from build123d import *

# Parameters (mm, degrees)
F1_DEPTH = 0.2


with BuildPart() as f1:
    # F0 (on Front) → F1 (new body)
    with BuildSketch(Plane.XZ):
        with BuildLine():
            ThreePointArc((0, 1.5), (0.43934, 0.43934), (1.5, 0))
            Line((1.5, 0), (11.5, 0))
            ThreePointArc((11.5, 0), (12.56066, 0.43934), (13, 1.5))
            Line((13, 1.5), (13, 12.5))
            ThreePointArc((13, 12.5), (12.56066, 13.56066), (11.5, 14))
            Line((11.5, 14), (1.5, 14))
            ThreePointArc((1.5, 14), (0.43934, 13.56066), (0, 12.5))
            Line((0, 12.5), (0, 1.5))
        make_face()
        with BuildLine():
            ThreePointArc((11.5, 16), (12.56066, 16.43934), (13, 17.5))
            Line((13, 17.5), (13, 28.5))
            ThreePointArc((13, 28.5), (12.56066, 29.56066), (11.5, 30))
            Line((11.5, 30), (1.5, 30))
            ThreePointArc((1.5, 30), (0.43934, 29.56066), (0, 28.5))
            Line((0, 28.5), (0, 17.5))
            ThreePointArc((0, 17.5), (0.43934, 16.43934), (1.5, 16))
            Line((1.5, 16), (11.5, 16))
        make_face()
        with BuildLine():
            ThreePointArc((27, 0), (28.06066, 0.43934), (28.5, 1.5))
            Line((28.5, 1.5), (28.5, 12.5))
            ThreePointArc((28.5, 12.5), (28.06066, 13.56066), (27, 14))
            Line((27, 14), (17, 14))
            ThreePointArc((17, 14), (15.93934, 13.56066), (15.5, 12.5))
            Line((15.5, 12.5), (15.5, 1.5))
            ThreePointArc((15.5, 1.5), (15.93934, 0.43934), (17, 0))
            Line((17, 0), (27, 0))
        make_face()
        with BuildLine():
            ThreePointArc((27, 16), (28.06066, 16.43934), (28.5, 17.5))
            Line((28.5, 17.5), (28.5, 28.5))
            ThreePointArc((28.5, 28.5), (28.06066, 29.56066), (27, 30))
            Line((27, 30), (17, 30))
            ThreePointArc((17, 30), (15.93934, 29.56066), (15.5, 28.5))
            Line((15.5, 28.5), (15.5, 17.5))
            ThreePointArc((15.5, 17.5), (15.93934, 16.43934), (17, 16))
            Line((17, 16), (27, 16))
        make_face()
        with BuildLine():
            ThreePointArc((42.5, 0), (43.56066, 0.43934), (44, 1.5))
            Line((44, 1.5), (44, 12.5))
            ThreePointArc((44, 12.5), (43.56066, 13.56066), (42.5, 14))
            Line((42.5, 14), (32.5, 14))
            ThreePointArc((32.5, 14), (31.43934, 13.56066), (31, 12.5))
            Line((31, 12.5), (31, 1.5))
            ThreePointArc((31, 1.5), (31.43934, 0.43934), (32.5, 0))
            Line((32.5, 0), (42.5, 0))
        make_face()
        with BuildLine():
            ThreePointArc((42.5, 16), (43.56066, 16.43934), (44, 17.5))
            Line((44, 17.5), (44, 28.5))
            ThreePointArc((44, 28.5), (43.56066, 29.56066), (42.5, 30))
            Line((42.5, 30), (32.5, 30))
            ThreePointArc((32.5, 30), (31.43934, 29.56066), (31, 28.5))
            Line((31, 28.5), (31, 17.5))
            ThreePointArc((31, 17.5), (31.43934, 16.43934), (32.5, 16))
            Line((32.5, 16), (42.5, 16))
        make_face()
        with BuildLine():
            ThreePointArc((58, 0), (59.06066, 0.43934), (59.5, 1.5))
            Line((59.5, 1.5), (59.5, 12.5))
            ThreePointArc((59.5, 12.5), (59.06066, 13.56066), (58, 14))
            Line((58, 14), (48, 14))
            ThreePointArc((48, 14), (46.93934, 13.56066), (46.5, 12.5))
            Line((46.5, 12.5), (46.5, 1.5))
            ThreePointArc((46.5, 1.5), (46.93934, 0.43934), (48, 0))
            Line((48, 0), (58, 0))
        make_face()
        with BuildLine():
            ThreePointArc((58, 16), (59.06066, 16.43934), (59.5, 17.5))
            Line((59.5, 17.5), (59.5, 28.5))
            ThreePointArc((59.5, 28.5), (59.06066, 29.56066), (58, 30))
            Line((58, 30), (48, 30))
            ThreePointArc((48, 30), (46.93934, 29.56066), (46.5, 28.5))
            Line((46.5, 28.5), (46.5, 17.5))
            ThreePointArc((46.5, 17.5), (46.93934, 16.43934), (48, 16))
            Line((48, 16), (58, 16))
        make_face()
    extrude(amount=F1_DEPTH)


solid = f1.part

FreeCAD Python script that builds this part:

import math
import FreeCAD as App
import Part
import Sketcher
Q = App.Units.Quantity

doc = App.newDocument("Part")
body = doc.addObject("PartDesign::Body", "Body")
body.AllowCompound = True

sketch1 = body.newObject("Sketcher::SketchObject", "Sketch")
sketch1.AttachmentSupport = (doc.getObject("XZ_Plane"), [""])
sketch1.MapMode = "FlatFace"
sketch1.addGeometry(Part.ArcOfCircle(Part.Circle(App.Vector(1.500001, 1.500001, 0), App.Vector(0, 0, 1), 1.500001), math.radians(-179.999978), math.radians(-90.000022)), False)
sketch1.addGeometry(Part.LineSegment(App.Vector(1.5, 0, 0), App.Vector(11.5, 0, 0)), False)
sketch1.addGeometry(Part.ArcOfCircle(Part.Circle(App.Vector(11.499999, 1.500001, 0), App.Vector(0, 0, 1), 1.500001), math.radians(-89.999978), math.radians(-0.000022)), False)
sketch1.addGeometry(Part.LineSegment(App.Vector(13, 1.5, 0), App.Vector(13, 12.5, 0)), False)
sketch1.addGeometry(Part.ArcOfCircle(Part.Circle(App.Vector(11.499999, 12.499999, 0), App.Vector(0, 0, 1), 1.500001), math.radians(0.000022), math.radians(89.999978)), False)
sketch1.addGeometry(Part.LineSegment(App.Vector(11.5, 14, 0), App.Vector(1.5, 14, 0)), False)
sketch1.addGeometry(Part.ArcOfCircle(Part.Circle(App.Vector(1.500001, 12.499999, 0), App.Vector(0, 0, 1), 1.500001), math.radians(90.000022), math.radians(179.999978)), False)
sketch1.addGeometry(Part.LineSegment(App.Vector(0, 12.5, 0), App.Vector(0, 1.5, 0)), False)
sketch1.addGeometry(Part.ArcOfCircle(Part.Circle(App.Vector(11.499999, 17.500001, 0), App.Vector(0, 0, 1), 1.500001), math.radians(-89.999978), math.radians(-0.000022)), False)
sketch1.addGeometry(Part.LineSegment(App.Vector(13, 17.5, 0), App.Vector(13, 28.5, 0)), False)
sketch1.addGeometry(Part.ArcOfCircle(Part.Circle(App.Vector(11.499999, 28.499999, 0), App.Vector(0, 0, 1), 1.500001), math.radians(0.000022), math.radians(89.999978)), False)
sketch1.addGeometry(Part.LineSegment(App.Vector(11.5, 30, 0), App.Vector(1.5, 30, 0)), False)
sketch1.addGeometry(Part.ArcOfCircle(Part.Circle(App.Vector(1.500001, 28.499999, 0), App.Vector(0, 0, 1), 1.500001), math.radians(90.000022), math.radians(179.999978)), False)
sketch1.addGeometry(Part.LineSegment(App.Vector(0, 28.5, 0), App.Vector(0, 17.5, 0)), False)
sketch1.addGeometry(Part.ArcOfCircle(Part.Circle(App.Vector(1.500001, 17.500001, 0), App.Vector(0, 0, 1), 1.500001), math.radians(-179.999978), math.radians(-90.000022)), False)
sketch1.addGeometry(Part.LineSegment(App.Vector(1.5, 16, 0), App.Vector(11.5, 16, 0)), False)
sketch1.addGeometry(Part.ArcOfCircle(Part.Circle(App.Vector(26.999999, 1.500001, 0), App.Vector(0, 0, 1), 1.500001), math.radians(-89.999978), math.radians(-0.000022)), False)
sketch1.addGeometry(Part.LineSegment(App.Vector(28.5, 1.5, 0), App.Vector(28.5, 12.5, 0)), False)
sketch1.addGeometry(Part.ArcOfCircle(Part.Circle(App.Vector(26.999999, 12.499999, 0), App.Vector(0, 0, 1), 1.500001), math.radians(0.000022), math.radians(89.999978)), False)
sketch1.addGeometry(Part.LineSegment(App.Vector(27, 14, 0), App.Vector(17, 14, 0)), False)
sketch1.addGeometry(Part.ArcOfCircle(Part.Circle(App.Vector(17.000001, 12.499999, 0), App.Vector(0, 0, 1), 1.500001), math.radians(90.000022), math.radians(179.999978)), False)
sketch1.addGeometry(Part.LineSegment(App.Vector(15.5, 12.5, 0), App.Vector(15.5, 1.5, 0)), False)
sketch1.addGeometry(Part.ArcOfCircle(Part.Circle(App.Vector(17.000001, 1.500001, 0), App.Vector(0, 0, 1), 1.500001), math.radians(-179.999978), math.radians(-90.000022)), False)
sketch1.addGeometry(Part.LineSegment(App.Vector(17, 0, 0), App.Vector(27, 0, 0)), False)
sketch1.addGeometry(Part.ArcOfCircle(Part.Circle(App.Vector(26.999999, 17.500001, 0), App.Vector(0, 0, 1), 1.500001), math.radians(-89.999978), math.radians(-0.000022)), False)
sketch1.addGeometry(Part.LineSegment(App.Vector(28.5, 17.5, 0), App.Vector(28.5, 28.5, 0)), False)
sketch1.addGeometry(Part.ArcOfCircle(Part.Circle(App.Vector(26.999999, 28.499999, 0), App.Vector(0, 0, 1), 1.500001), math.radians(0.000022), math.radians(89.999978)), False)
sketch1.addGeometry(Part.LineSegment(App.Vector(27, 30, 0), App.Vector(17, 30, 0)), False)
sketch1.addGeometry(Part.ArcOfCircle(Part.Circle(App.Vector(17.000001, 28.499999, 0), App.Vector(0, 0, 1), 1.500001), math.radians(90.000022), math.radians(179.999978)), False)
sketch1.addGeometry(Part.LineSegment(App.Vector(15.5, 28.5, 0), App.Vector(15.5, 17.5, 0)), False)
sketch1.addGeometry(Part.ArcOfCircle(Part.Circle(App.Vector(17.000001, 17.500001, 0), App.Vector(0, 0, 1), 1.500001), math.radians(-179.999978), math.radians(-90.000022)), False)
sketch1.addGeometry(Part.LineSegment(App.Vector(17, 16, 0), App.Vector(27, 16, 0)), False)
sketch1.addGeometry(Part.ArcOfCircle(Part.Circle(App.Vector(42.499999, 1.500001, 0), App.Vector(0, 0, 1), 1.500001), math.radians(-89.999978), math.radians(-0.000022)), False)
sketch1.addGeometry(Part.LineSegment(App.Vector(44, 1.5, 0), App.Vector(44, 12.5, 0)), False)
sketch1.addGeometry(Part.ArcOfCircle(Part.Circle(App.Vector(42.499999, 12.499999, 0), App.Vector(0, 0, 1), 1.500001), math.radians(0.000022), math.radians(89.999978)), False)
sketch1.addGeometry(Part.LineSegment(App.Vector(42.5, 14, 0), App.Vector(32.5, 14, 0)), False)
sketch1.addGeometry(Part.ArcOfCircle(Part.Circle(App.Vector(32.500001, 12.499999, 0), App.Vector(0, 0, 1), 1.500001), math.radians(90.000022), math.radians(179.999978)), False)
sketch1.addGeometry(Part.LineSegment(App.Vector(31, 12.5, 0), App.Vector(31, 1.5, 0)), False)
sketch1.addGeometry(Part.ArcOfCircle(Part.Circle(App.Vector(32.500001, 1.500001, 0), App.Vector(0, 0, 1), 1.500001), math.radians(-179.999978), math.radians(-90.000022)), False)
sketch1.addGeometry(Part.LineSegment(App.Vector(32.5, 0, 0), App.Vector(42.5, 0, 0)), False)
sketch1.addGeometry(Part.ArcOfCircle(Part.Circle(App.Vector(42.499999, 17.500001, 0), App.Vector(0, 0, 1), 1.500001), math.radians(-89.999978), math.radians(-0.000022)), False)
sketch1.addGeometry(Part.LineSegment(App.Vector(44, 17.5, 0), App.Vector(44, 28.5, 0)), False)
sketch1.addGeometry(Part.ArcOfCircle(Part.Circle(App.Vector(42.499999, 28.499999, 0), App.Vector(0, 0, 1), 1.500001), math.radians(0.000022), math.radians(89.999978)), False)
sketch1.addGeometry(Part.LineSegment(App.Vector(42.5, 30, 0), App.Vector(32.5, 30, 0)), False)
sketch1.addGeometry(Part.ArcOfCircle(Part.Circle(App.Vector(32.500001, 28.499999, 0), App.Vector(0, 0, 1), 1.500001), math.radians(90.000022), math.radians(179.999978)), False)
sketch1.addGeometry(Part.LineSegment(App.Vector(31, 28.5, 0), App.Vector(31, 17.5, 0)), False)
sketch1.addGeometry(Part.ArcOfCircle(Part.Circle(App.Vector(32.500001, 17.500001, 0), App.Vector(0, 0, 1), 1.500001), math.radians(-179.999978), math.radians(-90.000022)), False)
sketch1.addGeometry(Part.LineSegment(App.Vector(32.5, 16, 0), App.Vector(42.5, 16, 0)), False)
sketch1.addGeometry(Part.ArcOfCircle(Part.Circle(App.Vector(57.999999, 1.500001, 0), App.Vector(0, 0, 1), 1.500001), math.radians(-89.999978), math.radians(-0.000022)), False)
sketch1.addGeometry(Part.LineSegment(App.Vector(59.5, 1.5, 0), App.Vector(59.5, 12.5, 0)), False)
sketch1.addGeometry(Part.ArcOfCircle(Part.Circle(App.Vector(57.999999, 12.499999, 0), App.Vector(0, 0, 1), 1.500001), math.radians(0.000022), math.radians(89.999978)), False)
sketch1.addGeometry(Part.LineSegment(App.Vector(58, 14, 0), App.Vector(48, 14, 0)), False)
sketch1.addGeometry(Part.ArcOfCircle(Part.Circle(App.Vector(48.000001, 12.499999, 0), App.Vector(0, 0, 1), 1.500001), math.radians(90.000022), math.radians(179.999978)), False)
sketch1.addGeometry(Part.LineSegment(App.Vector(46.5, 12.5, 0), App.Vector(46.5, 1.5, 0)), False)
sketch1.addGeometry(Part.ArcOfCircle(Part.Circle(App.Vector(48.000001, 1.500001, 0), App.Vector(0, 0, 1), 1.500001), math.radians(-179.999978), math.radians(-90.000022)), False)
sketch1.addGeometry(Part.LineSegment(App.Vector(48, 0, 0), App.Vector(58, 0, 0)), False)
sketch1.addGeometry(Part.ArcOfCircle(Part.Circle(App.Vector(57.999999, 17.500001, 0), App.Vector(0, 0, 1), 1.500001), math.radians(-89.999978), math.radians(-0.000022)), False)
sketch1.addGeometry(Part.LineSegment(App.Vector(59.5, 17.5, 0), App.Vector(59.5, 28.5, 0)), False)
sketch1.addGeometry(Part.ArcOfCircle(Part.Circle(App.Vector(57.999999, 28.499999, 0), App.Vector(0, 0, 1), 1.500001), math.radians(0.000022), math.radians(89.999978)), False)
sketch1.addGeometry(Part.LineSegment(App.Vector(58, 30, 0), App.Vector(48, 30, 0)), False)
sketch1.addGeometry(Part.ArcOfCircle(Part.Circle(App.Vector(48.000001, 28.499999, 0), App.Vector(0, 0, 1), 1.500001), math.radians(90.000022), math.radians(179.999978)), False)
sketch1.addGeometry(Part.LineSegment(App.Vector(46.5, 28.5, 0), App.Vector(46.5, 17.5, 0)), False)
sketch1.addGeometry(Part.ArcOfCircle(Part.Circle(App.Vector(48.000001, 17.500001, 0), App.Vector(0, 0, 1), 1.500001), math.radians(-179.999978), math.radians(-90.000022)), False)
sketch1.addGeometry(Part.LineSegment(App.Vector(48, 16, 0), App.Vector(58, 16, 0)), False)
sketch1.addConstraint(Sketcher.Constraint("Tangent", 0, 2, 1, 1))
sketch1.addConstraint(Sketcher.Constraint("Tangent", 1, 2, 2, 1))
sketch1.addConstraint(Sketcher.Constraint("Tangent", 2, 2, 3, 1))
sketch1.addConstraint(Sketcher.Constraint("Tangent", 3, 2, 4, 1))
sketch1.addConstraint(Sketcher.Constraint("Tangent", 4, 2, 5, 1))
sketch1.addConstraint(Sketcher.Constraint("Tangent", 5, 2, 6, 1))
sketch1.addConstraint(Sketcher.Constraint("Tangent", 6, 2, 7, 1))
sketch1.addConstraint(Sketcher.Constraint("Tangent", 7, 2, 0, 1))
sketch1.addConstraint(Sketcher.Constraint("Tangent", 8, 2, 9, 1))
sketch1.addConstraint(Sketcher.Constraint("Tangent", 9, 2, 10, 1))
sketch1.addConstraint(Sketcher.Constraint("Tangent", 10, 2, 11, 1))
sketch1.addConstraint(Sketcher.Constraint("Tangent", 11, 2, 12, 1))
sketch1.addConstraint(Sketcher.Constraint("Tangent", 12, 2, 13, 1))
sketch1.addConstraint(Sketcher.Constraint("Tangent", 13, 2, 14, 1))
sketch1.addConstraint(Sketcher.Constraint("Tangent", 14, 2, 15, 1))
sketch1.addConstraint(Sketcher.Constraint("Tangent", 15, 2, 8, 1))
sketch1.addConstraint(Sketcher.Constraint("Tangent", 16, 2, 17, 1))
sketch1.addConstraint(Sketcher.Constraint("Tangent", 17, 2, 18, 1))
sketch1.addConstraint(Sketcher.Constraint("Tangent", 18, 2, 19, 1))
sketch1.addConstraint(Sketcher.Constraint("Tangent", 19, 2, 20, 1))
sketch1.addConstraint(Sketcher.Constraint("Tangent", 20, 2, 21, 1))
sketch1.addConstraint(Sketcher.Constraint("Tangent", 21, 2, 22, 1))
sketch1.addConstraint(Sketcher.Constraint("Tangent", 22, 2, 23, 1))
sketch1.addConstraint(Sketcher.Constraint("Tangent", 23, 2, 16, 1))
sketch1.addConstraint(Sketcher.Constraint("Tangent", 24, 2, 25, 1))
sketch1.addConstraint(Sketcher.Constraint("Tangent", 25, 2, 26, 1))
sketch1.addConstraint(Sketcher.Constraint("Tangent", 26, 2, 27, 1))
sketch1.addConstraint(Sketcher.Constraint("Tangent", 27, 2, 28, 1))
sketch1.addConstraint(Sketcher.Constraint("Tangent", 28, 2, 29, 1))
sketch1.addConstraint(Sketcher.Constraint("Tangent", 29, 2, 30, 1))
sketch1.addConstraint(Sketcher.Constraint("Tangent", 30, 2, 31, 1))
sketch1.addConstraint(Sketcher.Constraint("Tangent", 31, 2, 24, 1))
sketch1.addConstraint(Sketcher.Constraint("Tangent", 32, 2, 33, 1))
sketch1.addConstraint(Sketcher.Constraint("Tangent", 33, 2, 34, 1))
sketch1.addConstraint(Sketcher.Constraint("Tangent", 34, 2, 35, 1))
sketch1.addConstraint(Sketcher.Constraint("Tangent", 35, 2, 36, 1))
sketch1.addConstraint(Sketcher.Constraint("Tangent", 36, 2, 37, 1))
sketch1.addConstraint(Sketcher.Constraint("Tangent", 37, 2, 38, 1))
sketch1.addConstraint(Sketcher.Constraint("Tangent", 38, 2, 39, 1))
sketch1.addConstraint(Sketcher.Constraint("Tangent", 39, 2, 32, 1))
sketch1.addConstraint(Sketcher.Constraint("Tangent", 40, 2, 41, 1))
sketch1.addConstraint(Sketcher.Constraint("Tangent", 41, 2, 42, 1))
sketch1.addConstraint(Sketcher.Constraint("Tangent", 42, 2, 43, 1))
sketch1.addConstraint(Sketcher.Constraint("Tangent", 43, 2, 44, 1))
sketch1.addConstraint(Sketcher.Constraint("Tangent", 44, 2, 45, 1))
sketch1.addConstraint(Sketcher.Constraint("Tangent", 45, 2, 46, 1))
sketch1.addConstraint(Sketcher.Constraint("Tangent", 46, 2, 47, 1))
sketch1.addConstraint(Sketcher.Constraint("Tangent", 47, 2, 40, 1))
sketch1.addConstraint(Sketcher.Constraint("Tangent", 48, 2, 49, 1))
sketch1.addConstraint(Sketcher.Constraint("Tangent", 49, 2, 50, 1))
sketch1.addConstraint(Sketcher.Constraint("Tangent", 50, 2, 51, 1))
sketch1.addConstraint(Sketcher.Constraint("Tangent", 51, 2, 52, 1))
sketch1.addConstraint(Sketcher.Constraint("Tangent", 52, 2, 53, 1))
sketch1.addConstraint(Sketcher.Constraint("Tangent", 53, 2, 54, 1))
sketch1.addConstraint(Sketcher.Constraint("Tangent", 54, 2, 55, 1))
sketch1.addConstraint(Sketcher.Constraint("Tangent", 55, 2, 48, 1))
sketch1.addConstraint(Sketcher.Constraint("Tangent", 56, 2, 57, 1))
sketch1.addConstraint(Sketcher.Constraint("Tangent", 57, 2, 58, 1))
sketch1.addConstraint(Sketcher.Constraint("Tangent", 58, 2, 59, 1))
sketch1.addConstraint(Sketcher.Constraint("Tangent", 59, 2, 60, 1))
sketch1.addConstraint(Sketcher.Constraint("Tangent", 60, 2, 61, 1))
sketch1.addConstraint(Sketcher.Constraint("Tangent", 61, 2, 62, 1))
sketch1.addConstraint(Sketcher.Constraint("Tangent", 62, 2, 63, 1))
sketch1.addConstraint(Sketcher.Constraint("Tangent", 63, 2, 56, 1))
sketch1.addConstraint(Sketcher.Constraint("Horizontal", 1))
sketch1.addConstraint(Sketcher.Constraint("Vertical", 3))
sketch1.addConstraint(Sketcher.Constraint("Horizontal", 5))
sketch1.addConstraint(Sketcher.Constraint("Vertical", 7))
sketch1.addConstraint(Sketcher.Constraint("Vertical", 9))
sketch1.addConstraint(Sketcher.Constraint("Horizontal", 11))
sketch1.addConstraint(Sketcher.Constraint("Vertical", 13))
sketch1.addConstraint(Sketcher.Constraint("Horizontal", 15))
sketch1.addConstraint(Sketcher.Constraint("Vertical", 17))
sketch1.addConstraint(Sketcher.Constraint("Horizontal", 19))
sketch1.addConstraint(Sketcher.Constraint("Vertical", 21))
sketch1.addConstraint(Sketcher.Constraint("Horizontal", 23))
sketch1.addConstraint(Sketcher.Constraint("Vertical", 25))
sketch1.addConstraint(Sketcher.Constraint("Horizontal", 27))
sketch1.addConstraint(Sketcher.Constraint("Vertical", 29))
sketch1.addConstraint(Sketcher.Constraint("Horizontal", 31))
sketch1.addConstraint(Sketcher.Constraint("Vertical", 33))
sketch1.addConstraint(Sketcher.Constraint("Horizontal", 35))
sketch1.addConstraint(Sketcher.Constraint("Vertical", 37))
sketch1.addConstraint(Sketcher.Constraint("Horizontal", 39))
sketch1.addConstraint(Sketcher.Constraint("Vertical", 41))
sketch1.addConstraint(Sketcher.Constraint("Horizontal", 43))
sketch1.addConstraint(Sketcher.Constraint("Vertical", 45))
sketch1.addConstraint(Sketcher.Constraint("Horizontal", 47))
sketch1.addConstraint(Sketcher.Constraint("Vertical", 49))
sketch1.addConstraint(Sketcher.Constraint("Horizontal", 51))
sketch1.addConstraint(Sketcher.Constraint("Vertical", 53))
sketch1.addConstraint(Sketcher.Constraint("Horizontal", 55))
sketch1.addConstraint(Sketcher.Constraint("Vertical", 57))
sketch1.addConstraint(Sketcher.Constraint("Horizontal", 59))
sketch1.addConstraint(Sketcher.Constraint("Vertical", 61))
sketch1.addConstraint(Sketcher.Constraint("Horizontal", 63))
sketch1.addConstraint(Sketcher.Constraint("Equal", 0, 2))
sketch1.addConstraint(Sketcher.Constraint("Equal", 2, 4))
sketch1.addConstraint(Sketcher.Constraint("Equal", 4, 6))
sketch1.addConstraint(Sketcher.Constraint("Equal", 6, 8))
sketch1.addConstraint(Sketcher.Constraint("Equal", 8, 10))
sketch1.addConstraint(Sketcher.Constraint("Equal", 10, 12))
sketch1.addConstraint(Sketcher.Constraint("Equal", 12, 14))
sketch1.addConstraint(Sketcher.Constraint("Equal", 14, 16))
sketch1.addConstraint(Sketcher.Constraint("Equal", 16, 18))
sketch1.addConstraint(Sketcher.Constraint("Equal", 18, 20))
sketch1.addConstraint(Sketcher.Constraint("Equal", 20, 22))
sketch1.addConstraint(Sketcher.Constraint("Equal", 22, 24))
sketch1.addConstraint(Sketcher.Constraint("Equal", 24, 26))
sketch1.addConstraint(Sketcher.Constraint("Equal", 26, 28))
sketch1.addConstraint(Sketcher.Constraint("Equal", 28, 30))
sketch1.addConstraint(Sketcher.Constraint("Equal", 30, 32))
sketch1.addConstraint(Sketcher.Constraint("Equal", 32, 34))
sketch1.addConstraint(Sketcher.Constraint("Equal", 34, 36))
sketch1.addConstraint(Sketcher.Constraint("Equal", 36, 38))
sketch1.addConstraint(Sketcher.Constraint("Equal", 38, 40))
sketch1.addConstraint(Sketcher.Constraint("Equal", 40, 42))
sketch1.addConstraint(Sketcher.Constraint("Equal", 42, 44))
sketch1.addConstraint(Sketcher.Constraint("Equal", 44, 46))
sketch1.addConstraint(Sketcher.Constraint("Equal", 46, 48))
sketch1.addConstraint(Sketcher.Constraint("Equal", 48, 50))
sketch1.addConstraint(Sketcher.Constraint("Equal", 50, 52))
sketch1.addConstraint(Sketcher.Constraint("Equal", 52, 54))
sketch1.addConstraint(Sketcher.Constraint("Equal", 54, 56))
sketch1.addConstraint(Sketcher.Constraint("Equal", 56, 58))
sketch1.addConstraint(Sketcher.Constraint("Equal", 58, 60))
sketch1.addConstraint(Sketcher.Constraint("Equal", 60, 62))
sketch1.addConstraint(Sketcher.Constraint("PointOnObject", 0, 2, -1))
sketch1.addConstraint(Sketcher.Constraint("PointOnObject", 6, 2, -2))
sketch1.addConstraint(Sketcher.Constraint("PointOnObject", 12, 2, -2))
sketch1.addConstraint(Sketcher.Constraint("PointOnObject", 22, 2, -1))
sketch1.addConstraint(Sketcher.Constraint("PointOnObject", 38, 2, -1))
sketch1.addConstraint(Sketcher.Constraint("PointOnObject", 54, 2, -1))
sketch1.addConstraint(Sketcher.Constraint("Horizontal", 6, 3, 18, 3))
sketch1.addConstraint(Sketcher.Constraint("Horizontal", 14, 3, 24, 3))
sketch1.addConstraint(Sketcher.Constraint("Horizontal", 12, 3, 26, 3))
sketch1.addConstraint(Sketcher.Constraint("Horizontal", 20, 3, 34, 3))
sketch1.addConstraint(Sketcher.Constraint("Horizontal", 30, 3, 40, 3))
sketch1.addConstraint(Sketcher.Constraint("Horizontal", 28, 3, 42, 3))
sketch1.addConstraint(Sketcher.Constraint("Horizontal", 36, 3, 50, 3))
sketch1.addConstraint(Sketcher.Constraint("Horizontal", 46, 3, 56, 3))
sketch1.addConstraint(Sketcher.Constraint("Horizontal", 44, 3, 58, 3))
sketch1.addConstraint(Sketcher.Constraint("Vertical", 4, 3, 8, 3))
sketch1.addConstraint(Sketcher.Constraint("Vertical", 18, 3, 24, 3))
sketch1.addConstraint(Sketcher.Constraint("Vertical", 22, 3, 28, 3))
sketch1.addConstraint(Sketcher.Constraint("Vertical", 34, 3, 40, 3))
sketch1.addConstraint(Sketcher.Constraint("Vertical", 38, 3, 44, 3))
sketch1.addConstraint(Sketcher.Constraint("Vertical", 50, 3, 56, 3))
sketch1.addConstraint(Sketcher.Constraint("Vertical", 54, 3, 60, 3))
sketch1.addConstraint(Sketcher.Constraint("Equal", 15, 19))
sketch1.addConstraint(Sketcher.Constraint("Equal", 31, 35))
sketch1.addConstraint(Sketcher.Constraint("Equal", 47, 51))
sketch1.addConstraint(Sketcher.Constraint("Equal", 7, 9))
sketch1.addConstraint(Sketcher.Constraint("Radius", 0, Q("1.500001 mm")))
sketch1.addConstraint(Sketcher.Constraint("DistanceX", 1, 1, 1, 2, Q("10 mm")))
sketch1.addConstraint(Sketcher.Constraint("DistanceY", 3, 1, 3, 2, Q("11 mm")))
sketch1.addConstraint(Sketcher.Constraint("DistanceX", -1, 1, 16, 3, Q("26.999999 mm")))
sketch1.addConstraint(Sketcher.Constraint("DistanceX", -1, 1, 48, 3, Q("57.999999 mm")))
sketch1.addConstraint(Sketcher.Constraint("DistanceY", -1, 1, 10, 2, Q("30 mm")))
sketch1.addConstraint(Sketcher.Constraint("DistanceX", -1, 1, 32, 2, Q("44 mm")))
pad1 = body.newObject("PartDesign::Pad", "Pad")
pad1.Profile = sketch1
pad1.Length = 0.2

doc.recompute()
